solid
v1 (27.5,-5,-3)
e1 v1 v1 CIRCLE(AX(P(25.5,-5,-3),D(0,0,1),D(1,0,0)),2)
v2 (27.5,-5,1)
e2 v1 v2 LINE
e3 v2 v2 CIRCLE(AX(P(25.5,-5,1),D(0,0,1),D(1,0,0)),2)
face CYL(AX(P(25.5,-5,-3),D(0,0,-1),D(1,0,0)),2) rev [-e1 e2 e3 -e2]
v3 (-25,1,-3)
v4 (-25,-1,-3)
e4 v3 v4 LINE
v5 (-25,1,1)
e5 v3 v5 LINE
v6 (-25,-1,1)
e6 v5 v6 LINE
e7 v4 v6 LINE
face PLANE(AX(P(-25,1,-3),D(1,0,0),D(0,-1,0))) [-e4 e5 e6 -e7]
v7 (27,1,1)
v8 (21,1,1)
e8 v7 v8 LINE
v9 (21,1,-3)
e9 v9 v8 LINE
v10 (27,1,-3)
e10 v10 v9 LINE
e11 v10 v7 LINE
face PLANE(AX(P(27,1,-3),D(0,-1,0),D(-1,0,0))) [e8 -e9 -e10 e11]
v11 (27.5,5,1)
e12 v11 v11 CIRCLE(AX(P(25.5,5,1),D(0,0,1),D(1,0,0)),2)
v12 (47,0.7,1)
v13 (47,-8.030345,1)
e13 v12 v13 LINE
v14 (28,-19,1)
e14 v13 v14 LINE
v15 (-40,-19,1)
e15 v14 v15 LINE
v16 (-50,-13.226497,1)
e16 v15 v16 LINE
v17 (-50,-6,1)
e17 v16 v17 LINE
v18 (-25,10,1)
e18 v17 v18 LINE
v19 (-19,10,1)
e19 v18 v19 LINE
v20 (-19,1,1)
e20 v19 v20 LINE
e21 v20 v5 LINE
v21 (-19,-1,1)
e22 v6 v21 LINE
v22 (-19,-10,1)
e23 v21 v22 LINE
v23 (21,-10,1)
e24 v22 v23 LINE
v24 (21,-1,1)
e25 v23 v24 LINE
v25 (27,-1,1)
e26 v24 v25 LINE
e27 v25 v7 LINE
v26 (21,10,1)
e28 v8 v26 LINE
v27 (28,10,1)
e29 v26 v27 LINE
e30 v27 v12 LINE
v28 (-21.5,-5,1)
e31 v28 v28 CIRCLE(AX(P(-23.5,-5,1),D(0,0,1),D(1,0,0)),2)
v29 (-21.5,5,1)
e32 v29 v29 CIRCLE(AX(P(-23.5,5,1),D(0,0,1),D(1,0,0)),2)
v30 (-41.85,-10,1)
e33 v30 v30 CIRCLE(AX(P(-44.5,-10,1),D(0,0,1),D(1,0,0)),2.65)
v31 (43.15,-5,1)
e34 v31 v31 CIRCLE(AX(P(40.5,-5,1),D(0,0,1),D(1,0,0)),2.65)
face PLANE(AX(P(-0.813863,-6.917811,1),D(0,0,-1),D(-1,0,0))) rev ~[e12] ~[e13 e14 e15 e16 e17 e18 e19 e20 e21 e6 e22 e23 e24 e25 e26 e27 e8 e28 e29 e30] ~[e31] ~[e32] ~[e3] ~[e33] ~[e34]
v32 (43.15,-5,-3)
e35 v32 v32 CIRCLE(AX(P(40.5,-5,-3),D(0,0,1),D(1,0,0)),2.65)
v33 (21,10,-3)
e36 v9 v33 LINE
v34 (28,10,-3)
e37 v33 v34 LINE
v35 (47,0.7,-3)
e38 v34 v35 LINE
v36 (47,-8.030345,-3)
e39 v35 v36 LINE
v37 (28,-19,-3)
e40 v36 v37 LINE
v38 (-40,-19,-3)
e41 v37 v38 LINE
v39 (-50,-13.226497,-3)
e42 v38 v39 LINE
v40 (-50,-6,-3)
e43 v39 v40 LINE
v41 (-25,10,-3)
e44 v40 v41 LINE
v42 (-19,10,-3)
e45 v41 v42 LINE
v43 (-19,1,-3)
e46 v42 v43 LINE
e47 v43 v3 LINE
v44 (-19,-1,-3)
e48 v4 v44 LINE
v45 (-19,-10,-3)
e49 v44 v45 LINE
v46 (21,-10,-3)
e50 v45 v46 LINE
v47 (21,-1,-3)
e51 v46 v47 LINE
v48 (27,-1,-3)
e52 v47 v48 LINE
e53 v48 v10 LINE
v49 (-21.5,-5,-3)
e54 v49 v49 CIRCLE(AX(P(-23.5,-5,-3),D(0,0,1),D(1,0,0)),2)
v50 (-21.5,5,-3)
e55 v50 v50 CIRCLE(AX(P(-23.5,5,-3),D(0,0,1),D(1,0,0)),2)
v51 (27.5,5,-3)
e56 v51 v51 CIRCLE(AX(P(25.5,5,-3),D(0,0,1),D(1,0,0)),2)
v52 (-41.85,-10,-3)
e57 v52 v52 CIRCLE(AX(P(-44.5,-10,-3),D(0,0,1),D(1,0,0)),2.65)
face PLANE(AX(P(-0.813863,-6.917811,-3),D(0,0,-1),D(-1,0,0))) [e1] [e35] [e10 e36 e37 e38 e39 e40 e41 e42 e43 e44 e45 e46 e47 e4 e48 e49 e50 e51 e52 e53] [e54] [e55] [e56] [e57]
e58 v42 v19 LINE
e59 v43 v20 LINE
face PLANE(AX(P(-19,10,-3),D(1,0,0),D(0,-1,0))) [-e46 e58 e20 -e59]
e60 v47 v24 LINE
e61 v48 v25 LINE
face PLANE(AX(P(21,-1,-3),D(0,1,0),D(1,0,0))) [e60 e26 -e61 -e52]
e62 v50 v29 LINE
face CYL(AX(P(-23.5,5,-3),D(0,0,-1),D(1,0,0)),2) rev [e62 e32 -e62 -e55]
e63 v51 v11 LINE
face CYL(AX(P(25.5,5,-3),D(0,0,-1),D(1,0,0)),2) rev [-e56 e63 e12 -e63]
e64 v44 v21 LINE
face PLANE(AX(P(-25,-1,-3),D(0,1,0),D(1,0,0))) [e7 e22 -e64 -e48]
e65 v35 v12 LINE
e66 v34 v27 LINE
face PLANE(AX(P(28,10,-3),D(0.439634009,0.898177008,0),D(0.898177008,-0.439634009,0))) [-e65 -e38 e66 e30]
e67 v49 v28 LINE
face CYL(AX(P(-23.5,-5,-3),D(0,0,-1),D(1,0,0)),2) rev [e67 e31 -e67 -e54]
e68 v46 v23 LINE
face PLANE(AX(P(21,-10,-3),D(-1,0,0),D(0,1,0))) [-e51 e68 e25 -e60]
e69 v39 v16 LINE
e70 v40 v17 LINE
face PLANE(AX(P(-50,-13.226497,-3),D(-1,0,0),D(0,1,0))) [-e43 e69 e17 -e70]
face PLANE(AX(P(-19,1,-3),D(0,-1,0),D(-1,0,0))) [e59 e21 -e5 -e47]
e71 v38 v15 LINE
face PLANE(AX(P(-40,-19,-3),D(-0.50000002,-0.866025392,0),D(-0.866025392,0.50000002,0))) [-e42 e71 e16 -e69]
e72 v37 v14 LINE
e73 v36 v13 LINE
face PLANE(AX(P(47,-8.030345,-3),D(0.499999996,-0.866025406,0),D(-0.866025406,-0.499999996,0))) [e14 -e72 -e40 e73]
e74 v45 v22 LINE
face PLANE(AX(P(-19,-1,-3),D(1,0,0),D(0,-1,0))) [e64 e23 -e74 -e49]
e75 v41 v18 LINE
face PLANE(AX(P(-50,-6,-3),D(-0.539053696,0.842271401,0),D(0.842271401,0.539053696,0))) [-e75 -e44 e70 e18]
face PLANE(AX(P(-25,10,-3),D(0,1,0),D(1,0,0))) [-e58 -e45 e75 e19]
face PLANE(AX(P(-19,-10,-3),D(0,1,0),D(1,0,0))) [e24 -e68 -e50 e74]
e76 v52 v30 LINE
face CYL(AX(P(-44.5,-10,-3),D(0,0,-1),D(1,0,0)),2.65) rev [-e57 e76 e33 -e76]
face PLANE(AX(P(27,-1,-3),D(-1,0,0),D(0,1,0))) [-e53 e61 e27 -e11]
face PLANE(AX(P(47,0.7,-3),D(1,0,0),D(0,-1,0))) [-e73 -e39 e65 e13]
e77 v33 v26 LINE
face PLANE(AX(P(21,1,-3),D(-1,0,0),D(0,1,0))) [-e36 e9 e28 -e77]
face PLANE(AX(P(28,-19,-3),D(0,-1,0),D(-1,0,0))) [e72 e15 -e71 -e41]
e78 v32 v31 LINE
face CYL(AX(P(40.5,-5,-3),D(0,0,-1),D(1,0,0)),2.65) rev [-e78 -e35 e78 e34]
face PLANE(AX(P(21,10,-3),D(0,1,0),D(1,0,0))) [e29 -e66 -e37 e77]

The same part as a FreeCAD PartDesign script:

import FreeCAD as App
import Part
import Sketcher

V = App.Vector
Q = App.Units.Quantity

doc = App.newDocument("Part")
params = doc.addObject("Spreadsheet::Sheet", "Params")
for row, (alias, value) in enumerate([
    ("sketch1_diameter", "4 mm"),
    ("sketch1_diameter2", "5.3 mm"),
    ("sketch1_width", "6 mm"),
    ("sketch1_width2", "68 mm"),
    ("sketch1_width3", "7 mm"),
    ("pad1_length", "4 mm"),
], start=1):
    params.set(f"A{row}", alias)
    params.set(f"B{row}", "=" + value)
    params.setAlias(f"B{row}", alias)

body = doc.addObject("PartDesign::Body", "Body")

# Sketch on XY plane
sketch1 = body.newObject("Sketcher::SketchObject", "Sketch")
sketch1.AttachmentSupport = (doc.getObject("XY_Plane"), [""])
sketch1.MapMode = "FlatFace"
sketch1.AttachmentOffset = App.Placement(V(0, 0, -3), App.Rotation())
sketch1.addGeometry([
    Part.LineSegment(V(-19, 10, 0), V(-25, 10, 0)),  # 0
    Part.LineSegment(V(-25, 10, 0), V(-50, -6, 0)),  # 1
    Part.LineSegment(V(-50, -6, 0), V(-50, -13.2, 0)),  # 2
    Part.LineSegment(V(-50, -13.2, 0), V(-40, -19, 0)),  # 3
    Part.LineSegment(V(-40, -19, 0), V(28, -19, 0)),  # 4
    Part.LineSegment(V(28, -19, 0), V(47, -8, 0)),  # 5
    Part.LineSegment(V(47, -8, 0), V(47, 0.7, 0)),  # 6
    Part.LineSegment(V(47, 0.7, 0), V(28, 10, 0)),  # 7
    Part.LineSegment(V(28, 10, 0), V(21, 10, 0)),  # 8
    Part.LineSegment(V(21, 10, 0), V(21, 1, 0)),  # 9
    Part.LineSegment(V(21, 1, 0), V(27, 1, 0)),  # 10
    Part.LineSegment(V(27, 1, 0), V(27, -1, 0)),  # 11
    Part.LineSegment(V(27, -1, 0), V(21, -1, 0)),  # 12
    Part.LineSegment(V(21, -1, 0), V(21, -10, 0)),  # 13
    Part.LineSegment(V(21, -10, 0), V(-19, -10, 0)),  # 14
    Part.LineSegment(V(-19, -10, 0), V(-19, -1, 0)),  # 15
    Part.LineSegment(V(-19, -1, 0), V(-25, -1, 0)),  # 16
    Part.LineSegment(V(-25, -1, 0), V(-25, 1, 0)),  # 17
    Part.LineSegment(V(-25, 1, 0), V(-19, 1, 0)),  # 18
    Part.LineSegment(V(-19, 1, 0), V(-19, 10, 0)),  # 19
    Part.Circle(V(40.5, -5, 0), V(0, 0, 1), 2.6),  # 20
    Part.Circle(V(25.5, -5, 0), V(0, 0, 1), 2),  # 21
    Part.Circle(V(-44.5, -10, 0), V(0, 0, 1), 2.6),  # 22
    Part.Circle(V(-23.5, -5, 0), V(0, 0, 1), 2),  # 23
    Part.Circle(V(25.5, 5, 0), V(0, 0, 1), 2),  # 24
    Part.Circle(V(-23.5, 5, 0), V(0, 0, 1), 2),  # 25
], False)
sketch1.addConstraint([
    Sketcher.Constraint("Coincident", 0, 2, 1, 1),
    Sketcher.Constraint("Coincident", 1, 2, 2, 1),
    Sketcher.Constraint("Coincident", 2, 2, 3, 1),
    Sketcher.Constraint("Coincident", 3, 2, 4, 1),
    Sketcher.Constraint("Coincident", 4, 2, 5, 1),
    Sketcher.Constraint("Coincident", 5, 2, 6, 1),
    Sketcher.Constraint("Coincident", 6, 2, 7, 1),
    Sketcher.Constraint("Coincident", 7, 2, 8, 1),
    Sketcher.Constraint("Coincident", 8, 2, 9, 1),
    Sketcher.Constraint("Coincident", 9, 2, 10, 1),
    Sketcher.Constraint("Coincident", 10, 2, 11, 1),
    Sketcher.Constraint("Coincident", 11, 2, 12, 1),
    Sketcher.Constraint("Coincident", 12, 2, 13, 1),
    Sketcher.Constraint("Coincident", 13, 2, 14, 1),
    Sketcher.Constraint("Coincident", 14, 2, 15, 1),
    Sketcher.Constraint("Coincident", 15, 2, 16, 1),
    Sketcher.Constraint("Coincident", 16, 2, 17, 1),
    Sketcher.Constraint("Coincident", 17, 2, 18, 1),
    Sketcher.Constraint("Coincident", 18, 2, 19, 1),
    Sketcher.Constraint("Coincident", 19, 2, 0, 1),
    Sketcher.Constraint("Horizontal", 0),
    Sketcher.Constraint("Vertical", 2),
    Sketcher.Constraint("Horizontal", 4),
    Sketcher.Constraint("Vertical", 6),
    Sketcher.Constraint("Horizontal", 8),
    Sketcher.Constraint("Vertical", 9),
    Sketcher.Constraint("Horizontal", 10),
    Sketcher.Constraint("Vertical", 11),
    Sketcher.Constraint("Horizontal", 12),
    Sketcher.Constraint("Vertical", 13),
    Sketcher.Constraint("Horizontal", 14),
    Sketcher.Constraint("Vertical", 15),
    Sketcher.Constraint("Horizontal", 16),
    Sketcher.Constraint("Vertical", 17),
    Sketcher.Constraint("Horizontal", 18),
    Sketcher.Constraint("Vertical", 19),
    Sketcher.Constraint("Equal", 20, 22),
    Sketcher.Constraint("Equal", 21, 23),
    Sketcher.Constraint("Equal", 23, 24),
    Sketcher.Constraint("Equal", 24, 25),
    Sketcher.Constraint("Symmetric", 21, 3, 24, 3, -1),
    Sketcher.Constraint("Symmetric", 23, 3, 25, 3, -1),
    Sketcher.Constraint("Symmetric", 9, 2, 12, 2, -1),
    Sketcher.Constraint("Symmetric", 15, 2, 18, 2, -1),
    Sketcher.Constraint("Horizontal", 20, 3, 21, 3),
    Sketcher.Constraint("Horizontal", 21, 3, 23, 3),
    Sketcher.Constraint("Horizontal", 0, 2, 7, 2),
    Sketcher.Constraint("Horizontal", 22, 3, 13, 2),
    Sketcher.Constraint("Horizontal", 12, 2, 15, 2),
    Sketcher.Constraint("Vertical", 4, 2, 7, 2),
    Sketcher.Constraint("Vertical", 0, 2, 16, 2),
    Sketcher.Constraint("Equal", 0, 10),
    Sketcher.Constraint("Equal", 9, 13),
    Sketcher.Constraint("Diameter", 21, Q("4 mm")),
    Sketcher.Constraint("Diameter", 20, Q("5.3 mm")),
    Sketcher.Constraint("DistanceX", 0, 2, 0, 1, Q("6 mm")),
    Sketcher.Constraint("DistanceX", 4, 1, 4, 2, Q("68 mm")),
    Sketcher.Constraint("DistanceX", 8, 2, 8, 1, Q("7 mm")),
    Sketcher.Constraint("DistanceX", 14, 2, 14, 1, Q("40 mm")),
    Sketcher.Constraint("DistanceY", 9, 2, 9, 1, Q("9 mm")),
    Sketcher.Constraint("DistanceY", 11, 2, 11, 1, Q("2 mm")),
    Sketcher.Constraint("Angle", 3, Q("-30.000001 deg")),
    Sketcher.Constraint("Angle", 5, Q("30 deg")),
    Sketcher.Constraint("DistanceY", 20, 3, -1, 1, Q("5 mm")),
    Sketcher.Constraint("DistanceX", 0, 2, -1, 1, Q("25 mm")),
    Sketcher.Constraint("DistanceX", 1, 2, -1, 1, Q("50 mm")),
    Sketcher.Constraint("DistanceY", 1, 2, -1, 1, Q("6 mm")),
    Sketcher.Constraint("DistanceY", 3, 2, -1, 1, Q("19 mm")),
    Sketcher.Constraint("DistanceX", -1, 1, 5, 2, Q("47 mm")),
    Sketcher.Constraint("DistanceX", 21, 3, 20, 3, Q("15 mm")),
    Sketcher.Constraint("DistanceX", 22, 3, 21, 3, Q("70 mm")),
    Sketcher.Constraint("DistanceX", 22, 3, 23, 3, Q("21 mm")),
    Sketcher.Constraint("DistanceX", -1, 1, 20, 3, Q("40.5 mm")),
    Sketcher.Constraint("DistanceY", -1, 1, 6, 2, Q("0.7 mm")),
])
sketch1.setExpression("Constraints[53]", "Params.sketch1_diameter")
sketch1.setExpression("Constraints[54]", "Params.sketch1_diameter2")
sketch1.setExpression("Constraints[55]", "Params.sketch1_width")
sketch1.setExpression("Constraints[56]", "Params.sketch1_width2")
sketch1.setExpression("Constraints[57]", "Params.sketch1_width3")
pad1 = body.newObject("PartDesign::Pad", "Pad")
pad1.Profile = sketch1
pad1.setExpression("Length", "Params.pad1_length")

doc.recompute()
